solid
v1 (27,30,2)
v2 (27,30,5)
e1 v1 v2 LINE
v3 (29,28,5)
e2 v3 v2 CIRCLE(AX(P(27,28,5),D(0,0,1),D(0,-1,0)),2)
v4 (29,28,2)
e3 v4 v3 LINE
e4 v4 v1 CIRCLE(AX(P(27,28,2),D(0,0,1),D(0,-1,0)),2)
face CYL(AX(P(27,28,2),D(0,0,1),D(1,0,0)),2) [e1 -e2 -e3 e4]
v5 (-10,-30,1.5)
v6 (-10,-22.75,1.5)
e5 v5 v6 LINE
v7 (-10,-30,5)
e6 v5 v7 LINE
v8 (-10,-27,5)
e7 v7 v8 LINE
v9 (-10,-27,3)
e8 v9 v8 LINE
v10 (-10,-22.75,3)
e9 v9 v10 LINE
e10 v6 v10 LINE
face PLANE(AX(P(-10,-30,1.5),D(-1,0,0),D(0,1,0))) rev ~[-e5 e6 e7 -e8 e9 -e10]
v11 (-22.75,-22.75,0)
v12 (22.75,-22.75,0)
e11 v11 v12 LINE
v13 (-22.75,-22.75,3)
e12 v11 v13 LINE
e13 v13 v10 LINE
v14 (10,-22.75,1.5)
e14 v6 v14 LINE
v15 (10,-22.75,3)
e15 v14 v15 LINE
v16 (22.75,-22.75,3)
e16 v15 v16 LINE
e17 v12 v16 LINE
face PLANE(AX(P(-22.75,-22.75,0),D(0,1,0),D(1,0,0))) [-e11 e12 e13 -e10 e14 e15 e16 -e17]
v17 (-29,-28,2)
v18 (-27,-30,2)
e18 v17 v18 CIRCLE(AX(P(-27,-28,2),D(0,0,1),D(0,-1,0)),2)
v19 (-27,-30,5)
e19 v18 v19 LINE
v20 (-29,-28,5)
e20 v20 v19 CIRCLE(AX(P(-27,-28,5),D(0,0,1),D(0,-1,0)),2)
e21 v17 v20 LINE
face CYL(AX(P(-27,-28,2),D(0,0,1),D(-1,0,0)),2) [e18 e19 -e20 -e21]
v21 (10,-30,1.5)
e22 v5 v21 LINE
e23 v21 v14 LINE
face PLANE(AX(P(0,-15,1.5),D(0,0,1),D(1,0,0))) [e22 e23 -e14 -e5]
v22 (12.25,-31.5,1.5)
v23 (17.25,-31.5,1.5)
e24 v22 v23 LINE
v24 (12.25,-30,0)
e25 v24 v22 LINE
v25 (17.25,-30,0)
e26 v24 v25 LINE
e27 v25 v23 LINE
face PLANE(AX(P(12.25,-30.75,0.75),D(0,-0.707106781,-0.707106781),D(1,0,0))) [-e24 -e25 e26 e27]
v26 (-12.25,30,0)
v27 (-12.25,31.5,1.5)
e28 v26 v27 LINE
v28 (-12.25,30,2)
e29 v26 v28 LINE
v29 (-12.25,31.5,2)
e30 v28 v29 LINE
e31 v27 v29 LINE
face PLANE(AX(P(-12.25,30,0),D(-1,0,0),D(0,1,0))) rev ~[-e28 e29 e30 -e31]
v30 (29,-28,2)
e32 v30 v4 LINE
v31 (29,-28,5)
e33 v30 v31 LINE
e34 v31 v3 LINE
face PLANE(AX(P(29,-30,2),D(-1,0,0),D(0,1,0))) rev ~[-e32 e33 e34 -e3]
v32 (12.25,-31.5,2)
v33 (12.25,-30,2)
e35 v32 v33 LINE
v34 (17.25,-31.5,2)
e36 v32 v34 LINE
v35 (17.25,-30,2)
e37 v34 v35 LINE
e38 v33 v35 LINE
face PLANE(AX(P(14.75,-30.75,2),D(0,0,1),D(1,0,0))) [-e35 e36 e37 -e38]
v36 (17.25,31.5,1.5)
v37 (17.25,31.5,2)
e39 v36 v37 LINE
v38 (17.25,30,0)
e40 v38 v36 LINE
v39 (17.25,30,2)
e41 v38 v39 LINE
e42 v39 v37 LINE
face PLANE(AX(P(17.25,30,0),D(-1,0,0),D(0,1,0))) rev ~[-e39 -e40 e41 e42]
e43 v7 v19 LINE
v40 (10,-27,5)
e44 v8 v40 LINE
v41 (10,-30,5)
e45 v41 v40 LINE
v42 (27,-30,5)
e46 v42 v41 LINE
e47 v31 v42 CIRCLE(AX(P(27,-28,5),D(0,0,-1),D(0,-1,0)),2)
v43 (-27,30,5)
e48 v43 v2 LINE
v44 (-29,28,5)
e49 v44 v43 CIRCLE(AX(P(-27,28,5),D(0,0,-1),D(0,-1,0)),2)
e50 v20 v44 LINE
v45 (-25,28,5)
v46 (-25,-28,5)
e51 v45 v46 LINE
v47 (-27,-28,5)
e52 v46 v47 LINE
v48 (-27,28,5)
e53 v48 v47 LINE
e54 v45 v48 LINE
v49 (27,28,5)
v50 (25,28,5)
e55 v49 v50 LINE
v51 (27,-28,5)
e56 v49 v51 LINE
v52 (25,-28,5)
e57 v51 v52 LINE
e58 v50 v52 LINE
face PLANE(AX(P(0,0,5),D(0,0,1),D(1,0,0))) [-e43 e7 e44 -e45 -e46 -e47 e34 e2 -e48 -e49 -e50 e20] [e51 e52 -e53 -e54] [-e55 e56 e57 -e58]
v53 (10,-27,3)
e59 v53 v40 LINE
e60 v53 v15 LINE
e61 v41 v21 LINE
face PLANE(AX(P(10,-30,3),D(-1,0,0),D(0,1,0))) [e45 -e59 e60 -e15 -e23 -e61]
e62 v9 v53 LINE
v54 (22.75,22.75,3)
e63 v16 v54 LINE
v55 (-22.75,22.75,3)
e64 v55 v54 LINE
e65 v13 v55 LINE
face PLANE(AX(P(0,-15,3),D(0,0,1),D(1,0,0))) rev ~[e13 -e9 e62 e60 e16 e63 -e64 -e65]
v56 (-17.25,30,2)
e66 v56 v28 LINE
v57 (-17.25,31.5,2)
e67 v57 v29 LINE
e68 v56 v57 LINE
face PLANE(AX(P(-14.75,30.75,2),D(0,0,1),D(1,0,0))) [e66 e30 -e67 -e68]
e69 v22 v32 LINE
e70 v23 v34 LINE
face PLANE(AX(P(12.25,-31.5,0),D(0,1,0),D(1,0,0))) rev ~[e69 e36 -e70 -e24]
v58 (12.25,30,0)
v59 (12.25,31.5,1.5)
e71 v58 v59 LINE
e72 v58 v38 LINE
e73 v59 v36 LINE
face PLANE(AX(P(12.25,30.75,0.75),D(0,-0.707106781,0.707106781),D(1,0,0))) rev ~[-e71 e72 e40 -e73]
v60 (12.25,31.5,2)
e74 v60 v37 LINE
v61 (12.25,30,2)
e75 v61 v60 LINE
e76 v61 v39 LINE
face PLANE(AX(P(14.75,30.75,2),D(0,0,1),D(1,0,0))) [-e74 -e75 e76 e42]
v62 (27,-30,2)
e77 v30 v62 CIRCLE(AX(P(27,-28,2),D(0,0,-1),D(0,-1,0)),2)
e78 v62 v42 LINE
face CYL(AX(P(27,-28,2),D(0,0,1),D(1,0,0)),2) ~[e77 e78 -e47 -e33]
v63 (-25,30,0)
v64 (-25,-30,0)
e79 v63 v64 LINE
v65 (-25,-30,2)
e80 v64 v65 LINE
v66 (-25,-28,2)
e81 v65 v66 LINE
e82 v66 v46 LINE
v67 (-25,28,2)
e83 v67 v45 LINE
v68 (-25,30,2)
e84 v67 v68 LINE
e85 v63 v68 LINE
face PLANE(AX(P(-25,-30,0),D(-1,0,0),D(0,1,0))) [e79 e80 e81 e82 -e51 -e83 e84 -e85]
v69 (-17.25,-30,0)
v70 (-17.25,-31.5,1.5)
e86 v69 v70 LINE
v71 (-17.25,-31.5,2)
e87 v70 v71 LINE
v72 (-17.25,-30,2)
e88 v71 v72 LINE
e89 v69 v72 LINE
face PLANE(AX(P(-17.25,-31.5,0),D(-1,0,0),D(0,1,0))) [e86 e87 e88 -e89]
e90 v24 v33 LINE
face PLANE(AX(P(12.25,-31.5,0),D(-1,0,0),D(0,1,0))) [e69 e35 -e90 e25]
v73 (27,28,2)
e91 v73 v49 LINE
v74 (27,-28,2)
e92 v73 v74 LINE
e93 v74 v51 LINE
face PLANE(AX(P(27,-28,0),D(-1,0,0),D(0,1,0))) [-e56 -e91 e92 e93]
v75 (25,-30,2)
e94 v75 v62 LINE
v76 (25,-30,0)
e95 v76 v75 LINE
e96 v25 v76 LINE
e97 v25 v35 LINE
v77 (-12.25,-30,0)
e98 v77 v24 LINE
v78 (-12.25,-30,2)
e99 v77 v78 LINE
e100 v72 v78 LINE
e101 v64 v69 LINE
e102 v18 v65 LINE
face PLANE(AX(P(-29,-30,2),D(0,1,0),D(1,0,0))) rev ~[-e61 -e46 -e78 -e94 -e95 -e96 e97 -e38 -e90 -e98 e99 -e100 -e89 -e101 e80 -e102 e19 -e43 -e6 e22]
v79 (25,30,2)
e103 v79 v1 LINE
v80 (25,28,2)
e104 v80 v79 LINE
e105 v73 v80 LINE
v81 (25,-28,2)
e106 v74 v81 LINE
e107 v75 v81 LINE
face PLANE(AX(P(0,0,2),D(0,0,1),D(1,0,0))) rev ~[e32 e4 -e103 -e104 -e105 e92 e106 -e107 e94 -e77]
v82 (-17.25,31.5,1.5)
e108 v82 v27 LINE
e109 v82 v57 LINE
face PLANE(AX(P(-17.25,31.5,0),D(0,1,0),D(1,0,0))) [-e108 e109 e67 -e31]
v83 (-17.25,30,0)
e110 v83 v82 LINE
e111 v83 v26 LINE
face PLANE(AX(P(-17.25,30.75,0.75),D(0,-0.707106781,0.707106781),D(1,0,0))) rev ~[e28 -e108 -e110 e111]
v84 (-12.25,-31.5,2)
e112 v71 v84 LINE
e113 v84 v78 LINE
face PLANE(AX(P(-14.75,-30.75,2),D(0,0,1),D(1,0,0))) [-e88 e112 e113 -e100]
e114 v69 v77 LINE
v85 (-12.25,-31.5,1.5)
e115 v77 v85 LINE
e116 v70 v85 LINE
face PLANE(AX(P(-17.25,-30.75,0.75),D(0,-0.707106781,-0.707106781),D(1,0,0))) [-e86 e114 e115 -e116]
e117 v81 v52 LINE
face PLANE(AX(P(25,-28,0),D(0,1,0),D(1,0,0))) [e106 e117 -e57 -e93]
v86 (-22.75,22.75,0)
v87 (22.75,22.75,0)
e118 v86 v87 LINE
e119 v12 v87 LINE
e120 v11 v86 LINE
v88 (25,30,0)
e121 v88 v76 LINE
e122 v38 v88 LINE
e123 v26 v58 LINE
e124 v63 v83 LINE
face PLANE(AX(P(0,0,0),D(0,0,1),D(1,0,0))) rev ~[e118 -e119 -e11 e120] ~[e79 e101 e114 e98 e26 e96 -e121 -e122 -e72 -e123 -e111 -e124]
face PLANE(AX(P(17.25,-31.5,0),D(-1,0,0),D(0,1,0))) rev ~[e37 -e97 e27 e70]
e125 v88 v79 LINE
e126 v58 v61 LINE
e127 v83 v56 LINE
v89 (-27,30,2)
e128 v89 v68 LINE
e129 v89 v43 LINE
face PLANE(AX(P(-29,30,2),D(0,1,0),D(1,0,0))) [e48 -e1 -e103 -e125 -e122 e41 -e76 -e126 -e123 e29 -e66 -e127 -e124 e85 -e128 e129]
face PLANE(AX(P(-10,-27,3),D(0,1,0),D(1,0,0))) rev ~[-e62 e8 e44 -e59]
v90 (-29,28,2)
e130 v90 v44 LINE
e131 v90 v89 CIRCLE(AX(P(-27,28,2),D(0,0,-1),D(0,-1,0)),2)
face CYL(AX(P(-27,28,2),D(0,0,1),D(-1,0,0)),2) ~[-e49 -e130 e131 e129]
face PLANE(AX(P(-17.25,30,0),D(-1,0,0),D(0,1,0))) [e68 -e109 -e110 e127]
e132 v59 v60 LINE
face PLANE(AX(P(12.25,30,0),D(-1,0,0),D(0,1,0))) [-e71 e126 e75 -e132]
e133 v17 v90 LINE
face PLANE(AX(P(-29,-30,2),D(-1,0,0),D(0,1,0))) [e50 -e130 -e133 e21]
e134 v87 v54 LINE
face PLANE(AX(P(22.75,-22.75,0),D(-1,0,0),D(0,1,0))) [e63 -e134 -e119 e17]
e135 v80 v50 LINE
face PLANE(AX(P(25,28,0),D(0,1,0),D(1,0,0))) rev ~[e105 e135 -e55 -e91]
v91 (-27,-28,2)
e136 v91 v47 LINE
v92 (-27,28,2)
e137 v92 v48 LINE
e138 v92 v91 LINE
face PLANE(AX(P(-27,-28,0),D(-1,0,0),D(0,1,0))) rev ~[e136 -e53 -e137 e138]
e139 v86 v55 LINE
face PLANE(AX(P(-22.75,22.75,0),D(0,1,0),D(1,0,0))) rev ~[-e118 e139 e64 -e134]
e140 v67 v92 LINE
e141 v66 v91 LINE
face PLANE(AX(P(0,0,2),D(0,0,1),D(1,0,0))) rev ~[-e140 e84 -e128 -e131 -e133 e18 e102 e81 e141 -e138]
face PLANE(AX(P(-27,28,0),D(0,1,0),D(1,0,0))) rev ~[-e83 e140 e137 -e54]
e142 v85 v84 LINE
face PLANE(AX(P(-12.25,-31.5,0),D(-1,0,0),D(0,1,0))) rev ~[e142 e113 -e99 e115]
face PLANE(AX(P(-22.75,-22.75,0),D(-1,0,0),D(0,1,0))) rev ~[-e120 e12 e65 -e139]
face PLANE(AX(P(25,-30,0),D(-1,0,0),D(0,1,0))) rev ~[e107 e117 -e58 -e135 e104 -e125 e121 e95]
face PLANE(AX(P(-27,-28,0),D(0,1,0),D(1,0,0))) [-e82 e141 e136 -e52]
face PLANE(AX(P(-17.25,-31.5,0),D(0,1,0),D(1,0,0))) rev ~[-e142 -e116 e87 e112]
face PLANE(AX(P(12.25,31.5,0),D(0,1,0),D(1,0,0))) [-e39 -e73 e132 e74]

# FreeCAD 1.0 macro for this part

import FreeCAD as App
import Part
import Sketcher
Q = App.Units.Quantity


def edges_at(feature, points):
    """Names of the edges that pass closest to the given points."""
    edges = feature.Shape.Edges
    near = lambda p: min(range(len(edges)), key=lambda i: edges[i].distToShape(Part.Vertex(*p))[0])
    return sorted({f"Edge{near(p) + 1}" for p in points})

doc = App.newDocument("Part")
body = doc.addObject("PartDesign::Body", "Body")

sketch1 = doc.addObject("Sketcher::SketchObject", "Sketch")
body.addObject(sketch1)
sketch1.AttachmentSupport = (doc.XY_Plane, [""])
sketch1.MapMode = "FlatFace"
sketch1.addGeometry([
    Part.LineSegment(App.Vector(-25, 30, 0), App.Vector(-25, -30, 0)),
    Part.LineSegment(App.Vector(-25, -30, 0), App.Vector(25, -30, 0)),
    Part.LineSegment(App.Vector(25, -30, 0), App.Vector(25, 30, 0)),
    Part.LineSegment(App.Vector(25, 30, 0), App.Vector(-25, 30, 0)),
], False)
sketch1.addConstraint([
    Sketcher.Constraint("Coincident", 0, 2, 1, 1),
    Sketcher.Constraint("Coincident", 1, 2, 2, 1),
    Sketcher.Constraint("Coincident", 2, 2, 3, 1),
    Sketcher.Constraint("Coincident", 3, 2, 0, 1),
    Sketcher.Constraint("Vertical", 0),
    Sketcher.Constraint("Horizontal", 1),
    Sketcher.Constraint("Vertical", 2),
    Sketcher.Constraint("Horizontal", 3),
    Sketcher.Constraint("Symmetric", 0, 2, 2, 2, -1, 1),
    Sketcher.Constraint("DistanceX", 1, 1, 1, 2, Q("50 mm")),
    Sketcher.Constraint("DistanceY", 0, 2, 0, 1, Q("60 mm")),
])
pad1 = doc.addObject("PartDesign::Pad", "Pad")
body.addObject(pad1)
pad1.Profile = sketch1
pad1.Length = 5

sketch2 = doc.addObject("Sketcher::SketchObject", "Sketch001")
body.addObject(sketch2)
sketch2.AttachmentSupport = (doc.XY_Plane, [""])
sketch2.MapMode = "FlatFace"
sketch2.AttachmentOffset = App.Placement(App.Vector(0, 0, 2), App.Rotation())
sketch2.addGeometry([
    Part.LineSegment(App.Vector(-29, 30, 0), App.Vector(-29, -30, 0)),
    Part.LineSegment(App.Vector(-29, -30, 0), App.Vector(29, -30, 0)),
    Part.LineSegment(App.Vector(29, -30, 0), App.Vector(29, 30, 0)),
    Part.LineSegment(App.Vector(29, 30, 0), App.Vector(-29, 30, 0)),
], False)
sketch2.addConstraint([
    Sketcher.Constraint("Coincident", 0, 2, 1, 1),
    Sketcher.Constraint("Coincident", 1, 2, 2, 1),
    Sketcher.Constraint("Coincident", 2, 2, 3, 1),
    Sketcher.Constraint("Coincident", 3, 2, 0, 1),
    Sketcher.Constraint("Vertical", 0),
    Sketcher.Constraint("Horizontal", 1),
    Sketcher.Constraint("Vertical", 2),
    Sketcher.Constraint("Horizontal", 3),
    Sketcher.Constraint("Symmetric", 0, 2, 2, 2, -1, 1),
    Sketcher.Constraint("DistanceX", 1, 1, 1, 2, Q("58 mm")),
    Sketcher.Constraint("DistanceY", 0, 2, 0, 1, Q("60 mm")),
])
pad2 = doc.addObject("PartDesign::Pad", "Pad001")
body.addObject(pad2)
pad2.Profile = sketch2
pad2.Length = 3

sketch3 = doc.addObject("Sketcher::SketchObject", "Sketch002")
body.addObject(sketch3)
sketch3.AttachmentSupport = (doc.XY_Plane, [""])
sketch3.MapMode = "FlatFace"
sketch3.addGeometry([
    Part.LineSegment(App.Vector(-23, 23, 0), App.Vector(-23, -23, 0)),
    Part.LineSegment(App.Vector(-23, -23, 0), App.Vector(23, -23, 0)),
    Part.LineSegment(App.Vector(23, -23, 0), App.Vector(23, 23, 0)),
    Part.LineSegment(App.Vector(23, 23, 0), App.Vector(-23, 23, 0)),
], False)
sketch3.addConstraint([
    Sketcher.Constraint("Coincident", 0, 2, 1, 1),
    Sketcher.Constraint("Coincident", 1, 2, 2, 1),
    Sketcher.Constraint("Coincident", 2, 2, 3, 1),
    Sketcher.Constraint("Coincident", 3, 2, 0, 1),
    Sketcher.Constraint("Vertical", 0),
    Sketcher.Constraint("Horizontal", 1),
    Sketcher.Constraint("Vertical", 2),
    Sketcher.Constraint("Horizontal", 3),
    Sketcher.Constraint("Symmetric", 0, 2, 2, 2, -1, 1),
    Sketcher.Constraint("Equal", 3, 0),
    Sketcher.Constraint("DistanceX", 1, 1, 1, 2, Q("45.5 mm")),
])
pocket1 = doc.addObject("PartDesign::Pocket", "Pocket")
body.addObject(pocket1)
pocket1.Profile = sketch3
pocket1.Length = 3
pocket1.Reversed = True

sketch4 = doc.addObject("Sketcher::SketchObject", "Sketch003")
body.addObject(sketch4)
sketch4.AttachmentSupport = (doc.XY_Plane, [""])
sketch4.MapMode = "FlatFace"
sketch4.AttachmentOffset = App.Placement(App.Vector(0, 0, 1.5), App.Rotation())
sketch4.addGeometry([
    Part.LineSegment(App.Vector(-10, 0, 0), App.Vector(-10, -30, 0)),
    Part.LineSegment(App.Vector(-10, -30, 0), App.Vector(10, -30, 0)),
    Part.LineSegment(App.Vector(10, -30, 0), App.Vector(10, 0, 0)),
    Part.LineSegment(App.Vector(10, 0, 0), App.Vector(-10, 0, 0)),
], False)
sketch4.addConstraint([
    Sketcher.Constraint("Coincident", 0, 2, 1, 1),
    Sketcher.Constraint("Coincident", 1, 2, 2, 1),
    Sketcher.Constraint("Coincident", 2, 2, 3, 1),
    Sketcher.Constraint("Coincident", 3, 2, 0, 1),
    Sketcher.Constraint("Vertical", 0),
    Sketcher.Constraint("Horizontal", 1),
    Sketcher.Constraint("Vertical", 2),
    Sketcher.Constraint("Horizontal", 3),
    Sketcher.Constraint("Symmetric", 2, 2, 3, 2, -1, 1),
    Sketcher.Constraint("DistanceX", 1, 1, 1, 2, Q("20 mm")),
    Sketcher.Constraint("DistanceY", 0, 2, 0, 1, Q("30 mm")),
])
pocket2 = doc.addObject("PartDesign::Pocket", "Pocket001")
body.addObject(pocket2)
pocket2.Profile = sketch4
pocket2.Length = 1.5
pocket2.Reversed = True

sketch5 = doc.addObject("Sketcher::SketchObject", "Sketch004")
body.addObject(sketch5)
sketch5.AttachmentSupport = (doc.XY_Plane, [""])
sketch5.MapMode = "FlatFace"
sketch5.addGeometry([
    Part.LineSegment(App.Vector(-27, 28, 0), App.Vector(-27, -28, 0)),
    Part.LineSegment(App.Vector(-27, -28, 0), App.Vector(-25, -28, 0)),
    Part.LineSegment(App.Vector(-25, -28, 0), App.Vector(-25, 28, 0)),
    Part.LineSegment(App.Vector(-25, 28, 0), App.Vector(-27, 28, 0)),
    Part.LineSegment(App.Vector(25, 28, 0), App.Vector(25, -28, 0)),
    Part.LineSegment(App.Vector(25, -28, 0), App.Vector(27, -28, 0)),
    Part.LineSegment(App.Vector(27, -28, 0), App.Vector(27, 28, 0)),
    Part.LineSegment(App.Vector(27, 28, 0), App.Vector(25, 28, 0)),
], False)
sketch5.addConstraint([
    Sketcher.Constraint("Coincident", 0, 2, 1, 1),
    Sketcher.Constraint("Coincident", 1, 2, 2, 1),
    Sketcher.Constraint("Coincident", 2, 2, 3, 1),
    Sketcher.Constraint("Coincident", 3, 2, 0, 1),
    Sketcher.Constraint("Coincident", 4, 2, 5, 1),
    Sketcher.Constraint("Coincident", 5, 2, 6, 1),
    Sketcher.Constraint("Coincident", 6, 2, 7, 1),
    Sketcher.Constraint("Coincident", 7, 2, 4, 1),
    Sketcher.Constraint("Vertical", 0),
    Sketcher.Constraint("Horizontal", 1),
    Sketcher.Constraint("Vertical", 2),
    Sketcher.Constraint("Horizontal", 3),
    Sketcher.Constraint("Vertical", 4),
    Sketcher.Constraint("Horizontal", 5),
    Sketcher.Constraint("Vertical", 6),
    Sketcher.Constraint("Horizontal", 7),
    Sketcher.Constraint("Symmetric", 2, 2, 4, 2, -1, 1),
    Sketcher.Constraint("Symmetric", 0, 2, 6, 2, -1, 1),
    Sketcher.Constraint("Horizontal", 1, 2, 4, 2),
    Sketcher.Constraint("DistanceX", 1, 1, 1, 2, Q("2 mm")),
    Sketcher.Constraint("DistanceY", 0, 2, 0, 1, Q("56 mm")),
    Sketcher.Constraint("DistanceX", 0, 2, -1, 1, Q("27 mm")),
])
pocket3 = doc.addObject("PartDesign::Pocket", "Pocket002")
body.addObject(pocket3)
pocket3.Profile = sketch5
pocket3.Length = 25
pocket3.Reversed = True
doc.recompute()

fillet = doc.addObject("PartDesign::Fillet", "Fillet")
body.addObject(fillet)
fillet.Base = (pocket3, edges_at(pocket3, [
    (29, -30, 3.5),
    (-29, -30, 3.5),
    (-29, 30, 3.5),
    (29, 30, 3.5),
]))
fillet.Radius = 2

sketch6 = doc.addObject("Sketcher::SketchObject", "Sketch005")
body.addObject(sketch6)
sketch6.AttachmentSupport = (doc.XY_Plane, [""])
sketch6.MapMode = "FlatFace"
sketch6.addGeometry([
    Part.LineSegment(App.Vector(-17.2, -30, 0), App.Vector(-17.2, -31.5, 0)),
    Part.LineSegment(App.Vector(-17.2, -31.5, 0), App.Vector(-12.2, -31.5, 0)),
    Part.LineSegment(App.Vector(-12.2, -31.5, 0), App.Vector(-12.2, -30, 0)),
    Part.LineSegment(App.Vector(-12.2, -30, 0), App.Vector(-17.2, -30, 0)),
    Part.LineSegment(App.Vector(12.2, -30, 0), App.Vector(12.2, -31.5, 0)),
    Part.LineSegment(App.Vector(12.2, -31.5, 0), App.Vector(17.2, -31.5, 0)),
    Part.LineSegment(App.Vector(17.2, -31.5, 0), App.Vector(17.2, -30, 0)),
    Part.LineSegment(App.Vector(17.2, -30, 0), App.Vector(12.2, -30, 0)),
    Part.LineSegment(App.Vector(12.2, 31.5, 0), App.Vector(12.2, 30, 0)),
    Part.LineSegment(App.Vector(12.2, 30, 0), App.Vector(17.2, 30, 0)),
    Part.LineSegment(App.Vector(17.2, 30, 0), App.Vector(17.2, 31.5, 0)),
    Part.LineSegment(App.Vector(17.2, 31.5, 0), App.Vector(12.2, 31.5, 0)),
    Part.LineSegment(App.Vector(-17.2, 31.5, 0), App.Vector(-17.2, 30, 0)),
    Part.LineSegment(App.Vector(-17.2, 30, 0), App.Vector(-12.2, 30, 0)),
    Part.LineSegment(App.Vector(-12.2, 30, 0), App.Vector(-12.2, 31.5, 0)),
    Part.LineSegment(App.Vector(-12.2, 31.5, 0), App.Vector(-17.2, 31.5, 0)),
], False)
sketch6.addConstraint([
    Sketcher.Constraint("Coincident", 0, 2, 1, 1),
    Sketcher.Constraint("Coincident", 1, 2, 2, 1),
    Sketcher.Constraint("Coincident", 2, 2, 3, 1),
    Sketcher.Constraint("Coincident", 3, 2, 0, 1),
    Sketcher.Constraint("Coincident", 4, 2, 5, 1),
    Sketcher.Constraint("Coincident", 5, 2, 6, 1),
    Sketcher.Constraint("Coincident", 6, 2, 7, 1),
    Sketcher.Constraint("Coincident", 7, 2, 4, 1),
    Sketcher.Constraint("Coincident", 8, 2, 9, 1),
    Sketcher.Constraint("Coincident", 9, 2, 10, 1),
    Sketcher.Constraint("Coincident", 10, 2, 11, 1),
    Sketcher.Constraint("Coincident", 11, 2, 8, 1),
    Sketcher.Constraint("Coincident", 12, 2, 13, 1),
    Sketcher.Constraint("Coincident", 13, 2, 14, 1),
    Sketcher.Constraint("Coincident", 14, 2, 15, 1),
    Sketcher.Constraint("Coincident", 15, 2, 12, 1),
    Sketcher.Constraint("Vertical", 0),
    Sketcher.Constraint("Horizontal", 1),
    Sketcher.Constraint("Vertical", 2),
    Sketcher.Constraint("Horizontal", 3),
    Sketcher.Constraint("Vertical", 4),
    Sketcher.Constraint("Horizontal", 5),
    Sketcher.Constraint("Vertical", 6),
    Sketcher.Constraint("Horizontal", 7),
    Sketcher.Constraint("Vertical", 8),
    Sketcher.Constraint("Horizontal", 9),
    Sketcher.Constraint("Vertical", 10),
    Sketcher.Constraint("Horizontal", 11),
    Sketcher.Constraint("Vertical", 12),
    Sketcher.Constraint("Horizontal", 13),
    Sketcher.Constraint("Vertical", 14),
    Sketcher.Constraint("Horizontal", 15),
    Sketcher.Constraint("Symmetric", 2, 2, 8, 2, -1, 1),
    Sketcher.Constraint("Symmetric", 0, 2, 10, 2, -1, 1),
    Sketcher.Constraint("Symmetric", 6, 2, 12, 2, -1, 1),
    Sketcher.Constraint("Symmetric", 4, 2, 14, 2, -1, 1),
    Sketcher.Constraint("Symmetric", 1, 2, 4, 2, -2),
    Sketcher.Constraint("Symmetric", 3, 2, 6, 2, -2),
    Sketcher.Constraint("DistanceX", 1, 1, 1, 2, Q("5 mm")),
    Sketcher.Constraint("DistanceY", 0, 2, 0, 1, Q("1.5 mm")),
    Sketcher.Constraint("DistanceY", 2, 2, -1, 1, Q("30 mm")),
    Sketcher.Constraint("DistanceX", 1, 2, 4, 2, Q("24.5 mm")),
])
pad3 = doc.addObject("PartDesign::Pad", "Pad002")
body.addObject(pad3)
pad3.Profile = sketch6
pad3.Length = 2
doc.recompute()

chamfer = doc.addObject("PartDesign::Chamfer", "Chamfer")
body.addObject(chamfer)
chamfer.Base = (pad3, edges_at(pad3, [
    (-14.75, -31.5, 0),
    (14.75, -31.5, 0),
    (14.75, 31.5, 0),
    (-14.75, 31.5, 0),
]))
chamfer.Size = 1.5

sketch7 = doc.addObject("Sketcher::SketchObject", "Sketch006")
body.addObject(sketch7)
sketch7.AttachmentSupport = (doc.XY_Plane, [""])
sketch7.MapMode = "FlatFace"
sketch7.AttachmentOffset = App.Placement(App.Vector(0, 0, 3), App.Rotation())
sketch7.addGeometry([
    Part.LineSegment(App.Vector(-10, -27, 0), App.Vector(-10, -30, 0)),
    Part.LineSegment(App.Vector(-10, -30, 0), App.Vector(10, -30, 0)),
    Part.LineSegment(App.Vector(10, -30, 0), App.Vector(10, -27, 0)),
    Part.LineSegment(App.Vector(10, -27, 0), App.Vector(-10, -27, 0)),
], False)
sketch7.addConstraint([
    Sketcher.Constraint("Coincident", 0, 2, 1, 1),
    Sketcher.Constraint("Coincident", 1, 2, 2, 1),
    Sketcher.Constraint("Coincident", 2, 2, 3, 1),
    Sketcher.Constraint("Coincident", 3, 2, 0, 1),
    Sketcher.Constraint("Vertical", 0),
    Sketcher.Constraint("Horizontal", 1),
    Sketcher.Constraint("Vertical", 2),
    Sketcher.Constraint("Horizontal", 3),
    Sketcher.Constraint("DistanceX", 1, 1, 1, 2, Q("20 mm")),
    Sketcher.Constraint("DistanceY", 0, 2, 0, 1, Q("3 mm")),
    Sketcher.Constraint("DistanceX", 0, 2, -1, 1, Q("10 mm")),
    Sketcher.Constraint("DistanceY", 0, 2, -1, 1, Q("30 mm")),
])
pocket4 = doc.addObject("PartDesign::Pocket", "Pocket003")
body.addObject(pocket4)
pocket4.Profile = sketch7
pocket4.Length = 2
pocket4.Reversed = True

doc.recompute()
